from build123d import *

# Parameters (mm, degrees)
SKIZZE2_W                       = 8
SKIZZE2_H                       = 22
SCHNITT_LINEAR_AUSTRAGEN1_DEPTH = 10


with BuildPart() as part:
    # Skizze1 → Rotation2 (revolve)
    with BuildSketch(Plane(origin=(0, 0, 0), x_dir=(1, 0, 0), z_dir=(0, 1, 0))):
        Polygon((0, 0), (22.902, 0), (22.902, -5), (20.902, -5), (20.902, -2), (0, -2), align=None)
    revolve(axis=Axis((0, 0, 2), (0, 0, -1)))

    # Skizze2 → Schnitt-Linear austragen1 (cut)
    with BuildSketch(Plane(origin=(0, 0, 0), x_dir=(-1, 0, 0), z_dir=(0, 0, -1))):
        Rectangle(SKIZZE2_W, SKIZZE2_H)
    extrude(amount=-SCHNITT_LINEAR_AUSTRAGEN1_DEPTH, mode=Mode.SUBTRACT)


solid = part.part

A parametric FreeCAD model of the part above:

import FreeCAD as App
import Part
import Sketcher
from FreeCAD import Vector

doc = App.newDocument("Part")
params = doc.addObject("Spreadsheet::Sheet", "Params")
for row, (alias, value) in enumerate([
    ("sketch1_width", "2 mm"),
    ("sketch1_height", "3 mm"),
    ("revolution_angle", "360 deg"),
    ("sketch2_width", "8 mm"),
    ("sketch2_height", "22 mm"),
    ("pocket1_length", "10 mm"),
], start=1):
    params.set(f"A{row}", alias)
    params.set(f"B{row}", "=" + value)
    params.setAlias(f"B{row}", alias)

body = doc.addObject("PartDesign::Body", "Body")

# Sketch on XZ plane
sketch1 = body.newObject("Sketcher::SketchObject", "Sketch")
sketch1.AttachmentSupport = (doc.getObject("XZ_Plane"), [""])
sketch1.MapMode = "FlatFace"
sketch1.addGeometry(Part.LineSegment(Vector(22.902, 0, 0), Vector(0, 0, 0)), False)
sketch1.addGeometry(Part.LineSegment(Vector(0, 0, 0), Vector(0, 2, 0)), False)
sketch1.addGeometry(Part.LineSegment(Vector(0, 2, 0), Vector(20.902, 2, 0)), False)
sketch1.addGeometry(Part.LineSegment(Vector(20.902, 2, 0), Vector(20.902, 5, 0)), False)
sketch1.addGeometry(Part.LineSegment(Vector(20.902, 5, 0), Vector(22.902, 5, 0)), False)
sketch1.addGeometry(Part.LineSegment(Vector(22.902, 5, 0), Vector(22.902, 0, 0)), False)
sketch1.addConstraint(Sketcher.Constraint("Coincident", 0, 2, 1, 1))
sketch1.addConstraint(Sketcher.Constraint("Coincident", 1, 2, 2, 1))
sketch1.addConstraint(Sketcher.Constraint("Coincident", 2, 2, 3, 1))
sketch1.addConstraint(Sketcher.Constraint("Coincident", 3, 2, 4, 1))
sketch1.addConstraint(Sketcher.Constraint("Coincident", 4, 2, 5, 1))
sketch1.addConstraint(Sketcher.Constraint("Coincident", 5, 2, 0, 1))
sketch1.addConstraint(Sketcher.Constraint("Horizontal", 0))
sketch1.addConstraint(Sketcher.Constraint("Vertical", 1))
sketch1.addConstraint(Sketcher.Constraint("Horizontal", 2))
sketch1.addConstraint(Sketcher.Constraint("Vertical", 3))
sketch1.addConstraint(Sketcher.Constraint("Horizontal", 4))
sketch1.addConstraint(Sketcher.Constraint("Vertical", 5))
sketch1.addConstraint(Sketcher.Constraint("Coincident", 0, 2, -1, 1))
sketch1.addConstraint(Sketcher.Constraint("Equal", 4, 1))
sketch1.addConstraint(Sketcher.Constraint("DistanceX", 4, 1, 4, 2, 2.0))
sketch1.addConstraint(Sketcher.Constraint("DistanceY", 3, 1, 3, 2, 3.0))
sketch1.addConstraint(Sketcher.Constraint("DistanceX", 0, 2, 0, 1, 22.902))
sketch1.setExpression("Constraints[14]", "Params.sketch1_width")
sketch1.setExpression("Constraints[15]", "Params.sketch1_height")
revolution = body.newObject("PartDesign::Revolution", "Revolution")
revolution.Profile = sketch1
revolution.ReferenceAxis = (sketch1, ["V_Axis"])
revolution.setExpression("Angle", "Params.revolution_angle")

# Sketch on XY plane
sketch2 = body.newObject("Sketcher::SketchObject", "Sketch001")
sketch2.AttachmentSupport = (doc.getObject("XY_Plane"), [""])
sketch2.MapMode = "FlatFace"
sketch2.addGeometry(Part.LineSegment(Vector(4, 11, 0), Vector(4, -11, 0)), False)
sketch2.addGeometry(Part.LineSegment(Vector(4, -11, 0), Vector(-4, -11, 0)), False)
sketch2.addGeometry(Part.LineSegment(Vector(-4, -11, 0), Vector(-4, 11, 0)), False)
sketch2.addGeometry(Part.LineSegment(Vector(-4, 11, 0), Vector(4, 11, 0)), False)
sketch2.addConstraint(Sketcher.Constraint("Coincident", 0, 2, 1, 1))
sketch2.addConstraint(Sketcher.Constraint("Coincident", 1, 2, 2, 1))
sketch2.addConstraint(Sketcher.Constraint("Coincident", 2, 2, 3, 1))
sketch2.addConstraint(Sketcher.Constraint("Coincident", 3, 2, 0, 1))
sketch2.addConstraint(Sketcher.Constraint("Vertical", 0))
sketch2.addConstraint(Sketcher.Constraint("Horizontal", 1))
sketch2.addConstraint(Sketcher.Constraint("Vertical", 2))
sketch2.addConstraint(Sketcher.Constraint("Horizontal", 3))
sketch2.addConstraint(Sketcher.Constraint("Symmetric", 0, 2, 2, 2, -1, 1))
sketch2.addConstraint(Sketcher.Constraint("DistanceX", 1, 2, 1, 1, 8.0))
sketch2.addConstraint(Sketcher.Constraint("DistanceY", 0, 2, 0, 1, 22.0))
sketch2.setExpression("Constraints[9]", "Params.sketch2_width")
sketch2.setExpression("Constraints[10]", "Params.sketch2_height")
pocket1 = body.newObject("PartDesign::Pocket", "Pocket")
pocket1.Profile = sketch2
pocket1.setExpression("Length", "Params.pocket1_length")
pocket1.Reversed = True

doc.recompute()
